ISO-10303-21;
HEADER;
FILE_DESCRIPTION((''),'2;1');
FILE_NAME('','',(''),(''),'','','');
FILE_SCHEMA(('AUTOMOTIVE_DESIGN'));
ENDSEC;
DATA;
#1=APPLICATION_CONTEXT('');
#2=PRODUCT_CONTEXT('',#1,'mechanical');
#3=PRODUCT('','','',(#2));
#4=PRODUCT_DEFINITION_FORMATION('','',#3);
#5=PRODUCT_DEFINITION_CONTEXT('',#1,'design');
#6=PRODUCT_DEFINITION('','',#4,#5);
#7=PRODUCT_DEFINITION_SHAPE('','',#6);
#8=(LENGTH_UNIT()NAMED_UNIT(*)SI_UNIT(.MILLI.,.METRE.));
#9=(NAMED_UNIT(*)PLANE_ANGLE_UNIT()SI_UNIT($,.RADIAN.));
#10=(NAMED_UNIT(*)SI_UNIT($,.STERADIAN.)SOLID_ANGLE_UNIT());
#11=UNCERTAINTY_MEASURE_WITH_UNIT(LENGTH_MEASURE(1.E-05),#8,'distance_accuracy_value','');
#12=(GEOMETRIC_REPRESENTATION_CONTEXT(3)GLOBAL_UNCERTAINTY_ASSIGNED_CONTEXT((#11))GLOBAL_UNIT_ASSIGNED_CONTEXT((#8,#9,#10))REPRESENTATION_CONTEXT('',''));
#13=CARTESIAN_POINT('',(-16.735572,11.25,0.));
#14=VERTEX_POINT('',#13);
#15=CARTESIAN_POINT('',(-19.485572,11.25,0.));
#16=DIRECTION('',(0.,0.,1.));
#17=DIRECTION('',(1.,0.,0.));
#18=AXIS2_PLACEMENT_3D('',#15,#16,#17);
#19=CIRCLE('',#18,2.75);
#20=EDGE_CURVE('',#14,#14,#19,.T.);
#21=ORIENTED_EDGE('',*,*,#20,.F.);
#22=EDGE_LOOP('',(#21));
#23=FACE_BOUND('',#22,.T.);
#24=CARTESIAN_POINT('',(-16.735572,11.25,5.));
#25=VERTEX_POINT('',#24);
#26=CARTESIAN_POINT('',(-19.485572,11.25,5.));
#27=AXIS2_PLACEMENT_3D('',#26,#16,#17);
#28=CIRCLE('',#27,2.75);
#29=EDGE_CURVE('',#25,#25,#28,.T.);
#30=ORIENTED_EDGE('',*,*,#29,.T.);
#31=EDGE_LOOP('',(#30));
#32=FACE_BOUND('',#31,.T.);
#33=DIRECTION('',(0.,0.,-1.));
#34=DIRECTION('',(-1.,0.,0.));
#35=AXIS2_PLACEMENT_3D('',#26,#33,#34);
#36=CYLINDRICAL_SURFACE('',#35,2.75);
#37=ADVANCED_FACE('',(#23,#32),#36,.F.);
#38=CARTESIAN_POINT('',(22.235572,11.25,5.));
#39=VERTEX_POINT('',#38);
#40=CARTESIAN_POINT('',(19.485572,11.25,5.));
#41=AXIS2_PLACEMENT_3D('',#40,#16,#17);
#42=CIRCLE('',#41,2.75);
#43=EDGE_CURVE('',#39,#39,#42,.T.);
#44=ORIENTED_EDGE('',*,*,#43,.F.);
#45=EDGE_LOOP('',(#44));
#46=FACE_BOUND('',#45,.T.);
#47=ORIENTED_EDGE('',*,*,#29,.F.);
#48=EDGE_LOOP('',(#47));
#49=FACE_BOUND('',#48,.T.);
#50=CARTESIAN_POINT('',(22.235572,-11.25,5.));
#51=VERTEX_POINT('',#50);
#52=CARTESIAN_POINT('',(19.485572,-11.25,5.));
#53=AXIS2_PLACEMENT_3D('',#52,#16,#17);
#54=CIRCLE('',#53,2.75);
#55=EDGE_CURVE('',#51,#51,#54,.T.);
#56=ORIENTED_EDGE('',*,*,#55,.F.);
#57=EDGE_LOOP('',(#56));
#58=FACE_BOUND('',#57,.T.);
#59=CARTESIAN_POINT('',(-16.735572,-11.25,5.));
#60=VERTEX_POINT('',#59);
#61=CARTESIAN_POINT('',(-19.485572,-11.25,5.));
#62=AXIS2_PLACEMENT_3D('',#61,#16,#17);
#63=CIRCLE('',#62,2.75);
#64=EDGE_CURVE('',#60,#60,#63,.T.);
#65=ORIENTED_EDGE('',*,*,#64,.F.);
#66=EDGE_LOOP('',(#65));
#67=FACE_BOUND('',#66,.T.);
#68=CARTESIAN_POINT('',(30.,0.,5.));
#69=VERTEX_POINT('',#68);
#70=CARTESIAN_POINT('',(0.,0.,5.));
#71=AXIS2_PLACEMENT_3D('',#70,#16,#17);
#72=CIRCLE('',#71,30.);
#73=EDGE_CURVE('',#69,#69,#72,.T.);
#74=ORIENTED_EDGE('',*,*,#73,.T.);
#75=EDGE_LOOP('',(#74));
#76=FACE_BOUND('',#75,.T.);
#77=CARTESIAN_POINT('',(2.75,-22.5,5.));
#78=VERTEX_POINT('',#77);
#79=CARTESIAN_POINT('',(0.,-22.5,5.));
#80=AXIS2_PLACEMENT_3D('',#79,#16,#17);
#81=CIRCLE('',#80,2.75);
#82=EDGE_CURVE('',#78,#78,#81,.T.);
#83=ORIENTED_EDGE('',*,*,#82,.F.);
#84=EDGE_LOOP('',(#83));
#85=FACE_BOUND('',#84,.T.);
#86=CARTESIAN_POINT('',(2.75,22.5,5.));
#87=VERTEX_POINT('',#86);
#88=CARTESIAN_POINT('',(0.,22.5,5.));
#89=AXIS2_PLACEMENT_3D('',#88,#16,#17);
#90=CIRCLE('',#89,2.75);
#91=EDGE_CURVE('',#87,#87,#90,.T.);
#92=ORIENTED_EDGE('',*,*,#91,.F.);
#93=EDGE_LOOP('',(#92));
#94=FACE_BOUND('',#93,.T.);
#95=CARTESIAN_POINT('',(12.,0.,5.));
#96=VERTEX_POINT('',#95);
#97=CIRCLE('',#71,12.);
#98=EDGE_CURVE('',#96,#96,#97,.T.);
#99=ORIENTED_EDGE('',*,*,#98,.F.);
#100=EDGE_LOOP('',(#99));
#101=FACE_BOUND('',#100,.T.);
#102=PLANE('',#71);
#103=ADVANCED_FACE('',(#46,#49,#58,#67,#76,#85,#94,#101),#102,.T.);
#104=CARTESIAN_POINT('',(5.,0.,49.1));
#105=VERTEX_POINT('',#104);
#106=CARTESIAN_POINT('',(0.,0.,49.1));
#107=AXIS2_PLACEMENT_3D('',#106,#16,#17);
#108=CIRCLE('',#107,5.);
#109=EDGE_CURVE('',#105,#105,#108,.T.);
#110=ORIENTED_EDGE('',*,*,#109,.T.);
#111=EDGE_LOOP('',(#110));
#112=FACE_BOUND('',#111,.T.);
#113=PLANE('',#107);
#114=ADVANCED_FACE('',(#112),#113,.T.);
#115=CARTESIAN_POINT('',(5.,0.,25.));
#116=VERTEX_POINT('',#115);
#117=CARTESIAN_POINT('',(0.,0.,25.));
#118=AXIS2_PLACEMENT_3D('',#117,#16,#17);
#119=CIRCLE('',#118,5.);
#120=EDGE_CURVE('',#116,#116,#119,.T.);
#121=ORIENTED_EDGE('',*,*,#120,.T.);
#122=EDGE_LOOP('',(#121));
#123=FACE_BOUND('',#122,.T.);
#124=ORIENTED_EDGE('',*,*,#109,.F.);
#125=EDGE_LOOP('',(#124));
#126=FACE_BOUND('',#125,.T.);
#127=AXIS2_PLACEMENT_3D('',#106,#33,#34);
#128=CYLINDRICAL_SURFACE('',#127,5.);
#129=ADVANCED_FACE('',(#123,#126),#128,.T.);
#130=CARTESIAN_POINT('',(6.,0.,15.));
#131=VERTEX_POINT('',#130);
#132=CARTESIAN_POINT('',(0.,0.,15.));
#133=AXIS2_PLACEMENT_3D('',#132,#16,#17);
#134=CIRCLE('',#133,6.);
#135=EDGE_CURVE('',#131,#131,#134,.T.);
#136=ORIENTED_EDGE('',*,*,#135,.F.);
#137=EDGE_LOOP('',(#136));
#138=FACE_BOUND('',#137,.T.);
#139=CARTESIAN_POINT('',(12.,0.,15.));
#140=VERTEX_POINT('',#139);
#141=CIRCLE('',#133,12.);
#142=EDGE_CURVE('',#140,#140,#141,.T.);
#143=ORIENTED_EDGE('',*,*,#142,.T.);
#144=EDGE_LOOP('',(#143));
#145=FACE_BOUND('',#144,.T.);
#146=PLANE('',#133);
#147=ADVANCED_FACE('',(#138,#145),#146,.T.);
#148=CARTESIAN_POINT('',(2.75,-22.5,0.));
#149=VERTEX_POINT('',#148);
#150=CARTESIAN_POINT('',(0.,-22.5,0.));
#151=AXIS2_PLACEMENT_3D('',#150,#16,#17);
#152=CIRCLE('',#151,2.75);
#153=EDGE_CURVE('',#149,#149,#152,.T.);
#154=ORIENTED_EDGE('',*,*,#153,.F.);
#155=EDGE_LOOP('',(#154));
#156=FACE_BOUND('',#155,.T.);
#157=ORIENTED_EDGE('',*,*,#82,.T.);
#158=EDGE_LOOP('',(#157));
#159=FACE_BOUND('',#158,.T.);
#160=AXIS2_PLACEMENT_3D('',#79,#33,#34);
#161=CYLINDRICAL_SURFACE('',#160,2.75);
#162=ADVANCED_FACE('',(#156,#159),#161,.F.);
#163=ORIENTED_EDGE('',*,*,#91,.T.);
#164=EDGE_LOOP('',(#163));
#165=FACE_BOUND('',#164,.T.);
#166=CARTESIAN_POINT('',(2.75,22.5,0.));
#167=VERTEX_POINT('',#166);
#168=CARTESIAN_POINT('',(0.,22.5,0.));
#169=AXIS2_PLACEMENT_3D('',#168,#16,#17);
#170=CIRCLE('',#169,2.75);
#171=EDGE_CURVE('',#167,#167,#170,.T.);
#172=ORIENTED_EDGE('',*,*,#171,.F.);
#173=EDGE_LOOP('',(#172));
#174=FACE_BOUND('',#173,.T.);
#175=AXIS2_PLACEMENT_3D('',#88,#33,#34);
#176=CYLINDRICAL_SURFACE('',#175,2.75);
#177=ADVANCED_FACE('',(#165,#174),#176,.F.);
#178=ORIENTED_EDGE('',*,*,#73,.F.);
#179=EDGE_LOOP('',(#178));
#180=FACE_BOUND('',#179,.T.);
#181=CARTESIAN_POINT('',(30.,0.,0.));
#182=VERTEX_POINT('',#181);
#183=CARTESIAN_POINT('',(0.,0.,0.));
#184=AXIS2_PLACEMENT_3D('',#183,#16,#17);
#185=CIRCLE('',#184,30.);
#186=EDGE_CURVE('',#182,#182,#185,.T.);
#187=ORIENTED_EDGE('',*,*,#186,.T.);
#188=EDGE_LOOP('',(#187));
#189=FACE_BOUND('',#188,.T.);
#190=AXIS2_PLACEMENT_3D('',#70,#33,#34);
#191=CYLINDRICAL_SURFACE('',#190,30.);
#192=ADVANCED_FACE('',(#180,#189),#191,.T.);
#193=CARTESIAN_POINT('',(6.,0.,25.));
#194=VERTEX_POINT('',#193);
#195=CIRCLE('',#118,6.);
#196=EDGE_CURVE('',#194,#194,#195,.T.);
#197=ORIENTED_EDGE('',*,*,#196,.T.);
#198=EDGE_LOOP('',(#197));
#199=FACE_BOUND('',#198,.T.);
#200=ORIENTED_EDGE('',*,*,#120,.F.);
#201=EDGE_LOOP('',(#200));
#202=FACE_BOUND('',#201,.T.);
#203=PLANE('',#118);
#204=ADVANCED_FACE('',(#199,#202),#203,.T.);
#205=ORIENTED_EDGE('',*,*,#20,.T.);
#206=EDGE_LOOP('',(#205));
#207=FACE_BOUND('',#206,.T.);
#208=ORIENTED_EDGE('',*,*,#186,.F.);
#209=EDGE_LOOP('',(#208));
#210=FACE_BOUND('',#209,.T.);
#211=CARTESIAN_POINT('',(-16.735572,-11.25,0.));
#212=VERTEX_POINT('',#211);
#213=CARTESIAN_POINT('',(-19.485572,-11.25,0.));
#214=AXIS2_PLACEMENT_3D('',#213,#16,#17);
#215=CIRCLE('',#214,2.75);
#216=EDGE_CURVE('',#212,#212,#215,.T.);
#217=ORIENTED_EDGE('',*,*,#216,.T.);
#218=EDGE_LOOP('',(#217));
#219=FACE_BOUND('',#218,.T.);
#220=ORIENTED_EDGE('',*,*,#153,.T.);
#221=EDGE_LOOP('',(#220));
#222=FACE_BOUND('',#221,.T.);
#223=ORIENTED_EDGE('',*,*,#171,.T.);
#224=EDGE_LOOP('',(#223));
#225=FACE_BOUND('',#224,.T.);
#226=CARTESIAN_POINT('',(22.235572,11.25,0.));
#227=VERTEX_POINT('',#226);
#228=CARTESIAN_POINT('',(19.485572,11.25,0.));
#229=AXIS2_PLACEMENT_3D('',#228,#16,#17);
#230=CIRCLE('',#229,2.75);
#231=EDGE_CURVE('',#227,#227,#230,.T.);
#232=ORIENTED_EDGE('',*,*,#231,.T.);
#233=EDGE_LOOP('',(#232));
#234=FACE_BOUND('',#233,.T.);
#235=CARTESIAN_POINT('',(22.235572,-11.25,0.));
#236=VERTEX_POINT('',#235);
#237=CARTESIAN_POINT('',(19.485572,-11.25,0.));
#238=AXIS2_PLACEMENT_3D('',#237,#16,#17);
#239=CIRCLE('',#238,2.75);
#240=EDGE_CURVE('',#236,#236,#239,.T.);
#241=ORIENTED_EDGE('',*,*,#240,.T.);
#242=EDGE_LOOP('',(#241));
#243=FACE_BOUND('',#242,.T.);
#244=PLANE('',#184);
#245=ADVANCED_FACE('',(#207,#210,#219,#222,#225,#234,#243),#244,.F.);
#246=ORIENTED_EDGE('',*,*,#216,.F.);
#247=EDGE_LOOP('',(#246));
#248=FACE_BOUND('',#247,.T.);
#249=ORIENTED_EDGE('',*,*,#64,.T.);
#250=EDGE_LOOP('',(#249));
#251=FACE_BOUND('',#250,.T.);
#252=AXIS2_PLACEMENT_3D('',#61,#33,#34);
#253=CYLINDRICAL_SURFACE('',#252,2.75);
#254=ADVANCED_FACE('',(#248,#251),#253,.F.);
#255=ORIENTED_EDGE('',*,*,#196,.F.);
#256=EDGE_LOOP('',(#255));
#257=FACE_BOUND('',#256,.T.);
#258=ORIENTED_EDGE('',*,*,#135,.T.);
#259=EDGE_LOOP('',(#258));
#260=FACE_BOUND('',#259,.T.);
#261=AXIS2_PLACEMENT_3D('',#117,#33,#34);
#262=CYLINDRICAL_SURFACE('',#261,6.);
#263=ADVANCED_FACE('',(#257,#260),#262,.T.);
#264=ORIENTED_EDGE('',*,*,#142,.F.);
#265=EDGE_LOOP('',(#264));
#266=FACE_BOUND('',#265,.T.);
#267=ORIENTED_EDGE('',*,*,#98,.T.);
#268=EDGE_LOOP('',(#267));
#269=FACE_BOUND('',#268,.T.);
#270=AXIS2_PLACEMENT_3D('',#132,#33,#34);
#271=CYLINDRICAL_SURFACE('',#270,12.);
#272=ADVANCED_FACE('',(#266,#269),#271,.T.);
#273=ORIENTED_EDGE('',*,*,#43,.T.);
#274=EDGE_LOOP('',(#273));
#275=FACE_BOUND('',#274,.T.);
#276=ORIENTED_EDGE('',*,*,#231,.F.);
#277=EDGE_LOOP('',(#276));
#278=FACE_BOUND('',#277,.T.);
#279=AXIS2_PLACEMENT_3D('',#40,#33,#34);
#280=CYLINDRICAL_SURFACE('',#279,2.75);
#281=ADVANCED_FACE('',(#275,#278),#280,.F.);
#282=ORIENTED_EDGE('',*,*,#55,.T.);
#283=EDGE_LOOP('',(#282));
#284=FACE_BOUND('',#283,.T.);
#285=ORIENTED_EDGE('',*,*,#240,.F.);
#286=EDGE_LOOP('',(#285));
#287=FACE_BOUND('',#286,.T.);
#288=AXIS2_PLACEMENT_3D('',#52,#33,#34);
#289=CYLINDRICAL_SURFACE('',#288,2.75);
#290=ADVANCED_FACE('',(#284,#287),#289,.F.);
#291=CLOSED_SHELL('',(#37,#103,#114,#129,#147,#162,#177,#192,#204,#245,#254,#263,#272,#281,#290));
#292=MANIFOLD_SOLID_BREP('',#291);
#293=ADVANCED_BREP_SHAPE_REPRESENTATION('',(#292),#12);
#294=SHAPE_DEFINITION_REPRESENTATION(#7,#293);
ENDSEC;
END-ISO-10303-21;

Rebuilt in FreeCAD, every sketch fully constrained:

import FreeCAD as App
import Part
import Sketcher

V = App.Vector
Q = App.Units.Quantity

doc = App.newDocument("Part")
body = doc.addObject("PartDesign::Body", "Body")

# Sketch on XY plane
sketch1 = doc.addObject("Sketcher::SketchObject", "Sketch")
body.addObject(sketch1)
sketch1.AttachmentSupport = (doc.XY_Plane, [""])
sketch1.MapMode = "FlatFace"
sketch1.addGeometry([
    Part.Circle(V(0, 0, 0), V(0, 0, 1), 30),  # 0
    Part.Circle(V(-19.5, -11.2, 0), V(0, 0, 1), 2.8),  # 1
    Part.Circle(V(0, -22.5, 0), V(0, 0, 1), 2.8),  # 2
    Part.Circle(V(19.5, -11.2, 0), V(0, 0, 1), 2.8),  # 3
    Part.Circle(V(-19.5, 11.2, 0), V(0, 0, 1), 2.8),  # 4
    Part.Circle(V(19.5, 11.2, 0), V(0, 0, 1), 2.8),  # 5
    Part.Circle(V(0, 22.5, 0), V(0, 0, 1), 2.8),  # 6
], False)
sketch1.addConstraint([
    Sketcher.Constraint("Coincident", 0, 3, -1, 1),
    Sketcher.Constraint("Equal", 1, 2),
    Sketcher.Constraint("Equal", 2, 3),
    Sketcher.Constraint("Equal", 3, 4),
    Sketcher.Constraint("Equal", 4, 5),
    Sketcher.Constraint("Equal", 5, 6),
    Sketcher.Constraint("Symmetric", 3, 3, 4, 3, -1, 1),
    Sketcher.Constraint("Symmetric", 1, 3, 5, 3, -1, 1),
    Sketcher.Constraint("Symmetric", 2, 3, 6, 3, -1, 1),
    Sketcher.Constraint("Symmetric", 1, 3, 3, 3, -2),
    Sketcher.Constraint("PointOnObject", 2, 3, -2),
    Sketcher.Constraint("Diameter", 0, Q("60 mm")),
    Sketcher.Constraint("Diameter", 1, Q("5.5 mm")),
    Sketcher.Constraint("DistanceY", 2, 3, -1, 1, Q("22.5 mm")),
    Sketcher.Constraint("DistanceY", 1, 3, 4, 3, Q("22.5 mm")),
    Sketcher.Constraint("DistanceX", 1, 3, -1, 1, Q("19.485572 mm")),
])
pad1 = doc.addObject("PartDesign::Pad", "Pad")
body.addObject(pad1)
pad1.Profile = sketch1
pad1.Length = 5

# Sketch on XY plane
sketch2 = doc.addObject("Sketcher::SketchObject", "Sketch001")
body.addObject(sketch2)
sketch2.AttachmentSupport = (doc.XY_Plane, [""])
sketch2.MapMode = "FlatFace"
sketch2.AttachmentOffset = App.Placement(V(0, 0, 5), App.Rotation())
sketch2.addGeometry(Part.Circle(V(0, 0, 0), V(0, 0, 1), 12), False)
sketch2.addConstraint([
    Sketcher.Constraint("Coincident", 0, 3, -1, 1),
    Sketcher.Constraint("Diameter", 0, Q("24 mm")),
])
pad2 = doc.addObject("PartDesign::Pad", "Pad001")
body.addObject(pad2)
pad2.Profile = sketch2
pad2.Length = 10

# Sketch on XY plane
sketch3 = doc.addObject("Sketcher::SketchObject", "Sketch002")
body.addObject(sketch3)
sketch3.AttachmentSupport = (doc.XY_Plane, [""])
sketch3.MapMode = "FlatFace"
sketch3.AttachmentOffset = App.Placement(V(0, 0, 15), App.Rotation())
sketch3.addGeometry(Part.Circle(V(0, 0, 0), V(0, 0, 1), 6), False)
sketch3.addConstraint([
    Sketcher.Constraint("Coincident", 0, 3, -1, 1),
    Sketcher.Constraint("Diameter", 0, Q("12 mm")),
])
pad3 = doc.addObject("PartDesign::Pad", "Pad002")
body.addObject(pad3)
pad3.Profile = sketch3
pad3.Length = 10

# Sketch on XY plane
sketch4 = doc.addObject("Sketcher::SketchObject", "Sketch003")
body.addObject(sketch4)
sketch4.AttachmentSupport = (doc.XY_Plane, [""])
sketch4.MapMode = "FlatFace"
sketch4.AttachmentOffset = App.Placement(V(0, 0, 25), App.Rotation())
sketch4.addGeometry(Part.Circle(V(0, 0, 0), V(0, 0, 1), 5), False)
sketch4.addConstraint([
    Sketcher.Constraint("Coincident", 0, 3, -1, 1),
    Sketcher.Constraint("Diameter", 0, Q("10 mm")),
])
pad4 = doc.addObject("PartDesign::Pad", "Pad003")
body.addObject(pad4)
pad4.Profile = sketch4
pad4.Length = 24.1

doc.recompute()
